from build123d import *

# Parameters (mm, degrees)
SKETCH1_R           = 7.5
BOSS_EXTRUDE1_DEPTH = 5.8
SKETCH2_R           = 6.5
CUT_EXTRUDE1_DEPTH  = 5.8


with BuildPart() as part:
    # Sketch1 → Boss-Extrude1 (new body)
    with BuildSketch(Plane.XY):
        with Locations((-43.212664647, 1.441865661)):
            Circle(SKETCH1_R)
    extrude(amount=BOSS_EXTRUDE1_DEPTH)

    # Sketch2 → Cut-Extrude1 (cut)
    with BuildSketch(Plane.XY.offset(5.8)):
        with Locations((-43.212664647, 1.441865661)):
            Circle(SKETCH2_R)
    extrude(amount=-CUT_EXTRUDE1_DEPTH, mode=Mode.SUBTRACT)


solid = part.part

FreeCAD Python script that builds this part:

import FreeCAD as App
import Part
import Sketcher
Q = App.Units.Quantity

doc = App.newDocument("Part")
body = doc.addObject("PartDesign::Body", "Body")

sketch1 = body.newObject("Sketcher::SketchObject", "Sketch")
sketch1.AttachmentSupport = (doc.getObject("XY_Plane"), [""])
sketch1.MapMode = "FlatFace"
sketch1.addGeometry(Part.Circle(App.Vector(-43, 1, 0), App.Vector(0, 0, 1), 8), False)
sketch1.addConstraint(Sketcher.Constraint("Diameter", 0, Q("15 mm")))
sketch1.addConstraint(Sketcher.Constraint("DistanceX", 0, 3, -1, 1, Q("43.212665 mm")))
sketch1.addConstraint(Sketcher.Constraint("DistanceY", -1, 1, 0, 3, Q("1.441866 mm")))
pad1 = body.newObject("PartDesign::Pad", "Pad")
pad1.Profile = sketch1
pad1.Length = 5.8

sketch2 = body.newObject("Sketcher::SketchObject", "Sketch001")
sketch2.AttachmentSupport = (doc.getObject("XY_Plane"), [""])
sketch2.MapMode = "FlatFace"
sketch2.AttachmentOffset = App.Placement(App.Vector(0, 0, 5.8), App.Rotation())
sketch2.addGeometry(Part.Circle(App.Vector(-43, 1, 0), App.Vector(0, 0, 1), 6), False)
sketch2.addConstraint(Sketcher.Constraint("Diameter", 0, Q("13 mm")))
sketch2.addConstraint(Sketcher.Constraint("DistanceX", 0, 3, -1, 1, Q("43.212665 mm")))
sketch2.addConstraint(Sketcher.Constraint("DistanceY", -1, 1, 0, 3, Q("1.441866 mm")))
pocket1 = body.newObject("PartDesign::Pocket", "Pocket")
pocket1.Profile = sketch2
pocket1.Length = 5.8

doc.recompute()
